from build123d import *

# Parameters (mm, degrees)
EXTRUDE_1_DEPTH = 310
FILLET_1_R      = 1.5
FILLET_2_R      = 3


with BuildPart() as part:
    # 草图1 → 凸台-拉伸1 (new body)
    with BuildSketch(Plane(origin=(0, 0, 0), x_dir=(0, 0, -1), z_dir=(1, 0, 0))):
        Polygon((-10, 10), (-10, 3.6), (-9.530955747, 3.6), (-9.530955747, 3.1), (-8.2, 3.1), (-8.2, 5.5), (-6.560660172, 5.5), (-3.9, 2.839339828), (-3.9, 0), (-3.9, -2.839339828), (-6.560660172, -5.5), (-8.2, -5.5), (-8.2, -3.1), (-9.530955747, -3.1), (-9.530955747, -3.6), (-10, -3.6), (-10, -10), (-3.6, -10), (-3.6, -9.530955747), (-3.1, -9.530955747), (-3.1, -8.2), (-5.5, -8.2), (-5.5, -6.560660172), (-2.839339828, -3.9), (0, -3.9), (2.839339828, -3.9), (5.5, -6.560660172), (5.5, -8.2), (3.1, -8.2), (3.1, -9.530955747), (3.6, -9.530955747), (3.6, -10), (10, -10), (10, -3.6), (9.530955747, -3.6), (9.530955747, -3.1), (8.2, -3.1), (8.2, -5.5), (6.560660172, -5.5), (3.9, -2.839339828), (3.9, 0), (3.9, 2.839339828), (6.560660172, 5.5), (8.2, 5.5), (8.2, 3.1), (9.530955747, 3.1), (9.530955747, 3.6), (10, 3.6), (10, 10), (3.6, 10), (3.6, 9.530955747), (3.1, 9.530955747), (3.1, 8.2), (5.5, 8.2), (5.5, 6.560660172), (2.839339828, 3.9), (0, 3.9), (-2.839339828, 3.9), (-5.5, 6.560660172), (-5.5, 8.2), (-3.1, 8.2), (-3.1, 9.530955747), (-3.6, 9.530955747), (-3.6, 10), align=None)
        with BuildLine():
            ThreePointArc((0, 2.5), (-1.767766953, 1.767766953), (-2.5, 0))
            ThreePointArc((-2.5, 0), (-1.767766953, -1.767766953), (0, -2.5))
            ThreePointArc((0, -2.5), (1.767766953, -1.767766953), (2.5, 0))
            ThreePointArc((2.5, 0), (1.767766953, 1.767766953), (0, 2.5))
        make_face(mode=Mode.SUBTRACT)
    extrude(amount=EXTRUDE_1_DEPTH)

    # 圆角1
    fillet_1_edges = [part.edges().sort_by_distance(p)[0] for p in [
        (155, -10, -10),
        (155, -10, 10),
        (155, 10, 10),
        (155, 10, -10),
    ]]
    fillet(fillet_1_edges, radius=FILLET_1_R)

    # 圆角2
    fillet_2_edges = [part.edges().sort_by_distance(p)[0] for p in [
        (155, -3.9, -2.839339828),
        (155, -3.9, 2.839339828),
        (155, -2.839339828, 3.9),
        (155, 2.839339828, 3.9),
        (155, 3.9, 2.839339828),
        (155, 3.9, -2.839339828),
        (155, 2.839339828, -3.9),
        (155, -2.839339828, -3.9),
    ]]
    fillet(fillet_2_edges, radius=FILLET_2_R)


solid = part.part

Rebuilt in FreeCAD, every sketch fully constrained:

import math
import FreeCAD as App
import Part
import Sketcher
from FreeCAD import Vector
Q = App.Units.Quantity


def edges_at(feature, points):
    """Names of the edges that pass closest to the given points."""
    edges = feature.Shape.Edges
    near = lambda p: min(range(len(edges)), key=lambda i: edges[i].distToShape(Part.Vertex(*p))[0])
    return sorted({f"Edge{near(p) + 1}" for p in points})


def add_polygon(sketch, points):
    """Adds a closed chain of lines whose ends are joined by coincident constraints."""
    first, n = sketch.GeometryCount, len(points)
    for a, b in zip(points, points[1:] + points[:1]):
        sketch.addGeometry(Part.LineSegment(App.Vector(*a, 0), App.Vector(*b, 0)), False)
    for i in range(n):
        sketch.addConstraint(Sketcher.Constraint("Coincident", first + i, 2, first + (i + 1) % n, 1))

doc = App.newDocument("Part")
body = doc.addObject("PartDesign::Body", "Body")

# Sketch on YZ plane
sketch1 = body.newObject("Sketcher::SketchObject", "Sketch")
sketch1.AttachmentSupport = (doc.getObject("YZ_Plane"), [""])
sketch1.MapMode = "FlatFace"
add_polygon(sketch1, [(10, 10), (3.6, 10), (3.6, 9.53), (3.1, 9.53), (3.1, 8.2), (5.5, 8.2), (5.5, 6.56), (2.84, 3.9), (-2.84, 3.9), (-5.5, 6.56), (-5.5, 8.2), (-3.1, 8.2), (-3.1, 9.53), (-3.6, 9.53), (-3.6, 10), (-10, 10), (-10, 3.6), (-9.53, 3.6), (-9.53, 3.1), (-8.2, 3.1), (-8.2, 5.5), (-6.56, 5.5), (-3.9, 2.84), (-3.9, -2.84), (-6.56, -5.5), (-8.2, -5.5), (-8.2, -3.1), (-9.53, -3.1), (-9.53, -3.6), (-10, -3.6), (-10, -10), (-3.6, -10), (-3.6, -9.53), (-3.1, -9.53), (-3.1, -8.2), (-5.5, -8.2), (-5.5, -6.56), (-2.84, -3.9), (2.84, -3.9), (5.5, -6.56), (5.5, -8.2), (3.1, -8.2), (3.1, -9.53), (3.6, -9.53), (3.6, -10), (10, -10), (10, -3.6), (9.53, -3.6), (9.53, -3.1), (8.2, -3.1), (8.2, -5.5), (6.56, -5.5), (3.9, -2.84), (3.9, 2.84), (6.56, 5.5), (8.2, 5.5), (8.2, 3.1), (9.53, 3.1), (9.53, 3.6), (10, 3.6)])  # lines 0-59
sketch1.addGeometry(Part.ArcOfCircle(Part.Circle(Vector(0, 0, 0), Vector(0, 0, 1), 2.5), math.radians(0), math.radians(90)), False)  # 60
sketch1.addGeometry(Part.ArcOfCircle(Part.Circle(Vector(0, 0, 0), Vector(0, 0, 1), 2.5), math.radians(-90), math.radians(0)), False)  # 61
sketch1.addGeometry(Part.ArcOfCircle(Part.Circle(Vector(0, 0, 0), Vector(0, 0, 1), 2.5), math.radians(180), math.radians(270)), False)  # 62
sketch1.addGeometry(Part.ArcOfCircle(Part.Circle(Vector(0, 0, 0), Vector(0, 0, 1), 2.5), math.radians(90), math.radians(180)), False)  # 63
sketch1.addConstraint([
    Sketcher.Constraint("Tangent", 60, 1, 61, 2),
    Sketcher.Constraint("Tangent", 61, 1, 62, 2),
    Sketcher.Constraint("Tangent", 62, 1, 63, 2),
    Sketcher.Constraint("Tangent", 63, 1, 60, 2),
    Sketcher.Constraint("Horizontal", 0),
    Sketcher.Constraint("Vertical", 1),
    Sketcher.Constraint("Horizontal", 2),
    Sketcher.Constraint("Vertical", 3),
    Sketcher.Constraint("Horizontal", 4),
    Sketcher.Constraint("Vertical", 5),
    Sketcher.Constraint("Horizontal", 7),
    Sketcher.Constraint("Vertical", 9),
    Sketcher.Constraint("Horizontal", 10),
    Sketcher.Constraint("Vertical", 11),
    Sketcher.Constraint("Horizontal", 12),
    Sketcher.Constraint("Vertical", 13),
    Sketcher.Constraint("Horizontal", 14),
    Sketcher.Constraint("Vertical", 15),
    Sketcher.Constraint("Horizontal", 16),
    Sketcher.Constraint("Vertical", 17),
    Sketcher.Constraint("Horizontal", 18),
    Sketcher.Constraint("Vertical", 19),
    Sketcher.Constraint("Horizontal", 20),
    Sketcher.Constraint("Vertical", 22),
    Sketcher.Constraint("Horizontal", 24),
    Sketcher.Constraint("Vertical", 25),
    Sketcher.Constraint("Horizontal", 26),
    Sketcher.Constraint("Vertical", 27),
    Sketcher.Constraint("Horizontal", 28),
    Sketcher.Constraint("Vertical", 29),
    Sketcher.Constraint("Horizontal", 30),
    Sketcher.Constraint("Vertical", 31),
    Sketcher.Constraint("Horizontal", 32),
    Sketcher.Constraint("Vertical", 33),
    Sketcher.Constraint("Horizontal", 34),
    Sketcher.Constraint("Vertical", 35),
    Sketcher.Constraint("Horizontal", 37),
    Sketcher.Constraint("Vertical", 39),
    Sketcher.Constraint("Horizontal", 40),
    Sketcher.Constraint("Vertical", 41),
    Sketcher.Constraint("Horizontal", 42),
    Sketcher.Constraint("Vertical", 43),
    Sketcher.Constraint("Horizontal", 44),
    Sketcher.Constraint("Vertical", 45),
    Sketcher.Constraint("Horizontal", 46),
    Sketcher.Constraint("Vertical", 47),
    Sketcher.Constraint("Horizontal", 48),
    Sketcher.Constraint("Vertical", 49),
    Sketcher.Constraint("Horizontal", 50),
    Sketcher.Constraint("Vertical", 52),
    Sketcher.Constraint("Horizontal", 54),
    Sketcher.Constraint("Vertical", 55),
    Sketcher.Constraint("Horizontal", 56),
    Sketcher.Constraint("Vertical", 57),
    Sketcher.Constraint("Horizontal", 58),
    Sketcher.Constraint("Vertical", 59),
    Sketcher.Constraint("Coincident", 60, 3, -1, 1),
    Sketcher.Constraint("Equal", 60, 61),
    Sketcher.Constraint("Symmetric", 0, 2, 30, 2, -1, 1),
    Sketcher.Constraint("Symmetric", 2, 2, 32, 2, -1, 1),
    Sketcher.Constraint("Symmetric", 4, 2, 34, 2, -1, 1),
    Sketcher.Constraint("Symmetric", 6, 2, 36, 2, -1, 1),
    Sketcher.Constraint("Symmetric", 8, 2, 38, 2, -1, 1),
    Sketcher.Constraint("Symmetric", 10, 2, 40, 2, -1, 1),
    Sketcher.Constraint("Symmetric", 12, 2, 42, 2, -1, 1),
    Sketcher.Constraint("Symmetric", 14, 2, 44, 2, -1, 1),
    Sketcher.Constraint("Symmetric", 16, 2, 46, 2, -1, 1),
    Sketcher.Constraint("Symmetric", 18, 2, 48, 2, -1, 1),
    Sketcher.Constraint("Symmetric", 20, 2, 50, 2, -1, 1),
    Sketcher.Constraint("Symmetric", 21, 2, 51, 2, -1, 1),
    Sketcher.Constraint("Symmetric", 23, 2, 53, 2, -1, 1),
    Sketcher.Constraint("Symmetric", 25, 2, 55, 2, -1, 1),
    Sketcher.Constraint("Symmetric", 27, 2, 57, 2, -1, 1),
    Sketcher.Constraint("Symmetric", 5, 2, 8, 2, -2),
    Sketcher.Constraint("Symmetric", 3, 2, 10, 2, -2),
    Sketcher.Constraint("Symmetric", 1, 2, 12, 2, -2),
    Sketcher.Constraint("Symmetric", 29, 2, 44, 2, -2),
    Sketcher.Constraint("Symmetric", 27, 2, 46, 2, -2),
    Sketcher.Constraint("Symmetric", 25, 2, 48, 2, -2),
    Sketcher.Constraint("Symmetric", 23, 2, 50, 2, -2),
    Sketcher.Constraint("PointOnObject", 60, 1, -1),
    Sketcher.Constraint("PointOnObject", 61, 1, -2),
    Sketcher.Constraint("PointOnObject", 62, 1, -1),
    Sketcher.Constraint("PointOnObject", 63, 1, -2),
    Sketcher.Constraint("Perpendicular", 6, 8),
    Sketcher.Constraint("Parallel", 8, 21),
    Sketcher.Constraint("Perpendicular", 21, 23),
    Sketcher.Constraint("Parallel", 23, 36),
    Sketcher.Constraint("Perpendicular", 36, 38),
    Sketcher.Constraint("Perpendicular", 51, 53),
    Sketcher.Constraint("Horizontal", 22, 2, 51, 2),
    Sketcher.Constraint("Vertical", 45, 2, 58, 2),
    Sketcher.Constraint("Equal", 58, 1),
    Sketcher.Constraint("Equal", 56, 3),
    Sketcher.Constraint("Equal", 54, 5),
    Sketcher.Constraint("Equal", 44, 15),
    Sketcher.Constraint("Equal", 42, 17),
    Sketcher.Constraint("Equal", 40, 19),
    Sketcher.Constraint("Equal", 37, 22),
    Sketcher.Constraint("Equal", 8, 21),
    Sketcher.Constraint("Radius", 60, Q("2.5 mm")),
    Sketcher.Constraint("DistanceX", 0, 2, 0, 1, Q("6.4 mm")),
    Sketcher.Constraint("DistanceX", 2, 2, 2, 1, Q("0.5 mm")),
    Sketcher.Constraint("DistanceX", 4, 1, 4, 2, Q("2.4 mm")),
    Sketcher.Constraint("DistanceY", -1, 1, 0, 2, Q("10 mm")),
    Sketcher.Constraint("DistanceY", -1, 1, 3, 2, Q("8.2 mm")),
    Sketcher.Constraint("DistanceY", -1, 1, 6, 2, Q("3.9 mm")),
    Sketcher.Constraint("DistanceX", 7, 2, 7, 1, Q("5.67868 mm")),
    Sketcher.Constraint("DistanceX", 16, 1, 16, 2, Q("0.469044 mm")),
])
pad1 = body.newObject("PartDesign::Pad", "Pad")
pad1.Profile = sketch1
pad1.Length = 310
doc.recompute()

fillet = body.newObject("PartDesign::Fillet", "Fillet")
fillet.Base = (pad1, edges_at(pad1, [
    (155, -10, -10),
    (155, -10, 10),
    (155, 10, 10),
    (155, 10, -10),
]))
fillet.Radius = 1.5
doc.recompute()

fillet2 = body.newObject("PartDesign::Fillet", "Fillet001")
fillet2.Base = (fillet, edges_at(fillet, [
    (155, -3.9, -2.839),
    (155, -3.9, 2.839),
    (155, -2.839, 3.9),
    (155, 2.839, 3.9),
    (155, 3.9, 2.839),
    (155, 3.9, -2.839),
    (155, 2.839, -3.9),
    (155, -2.839, -3.9),
]))
fillet2.Radius = 3

doc.recompute()
